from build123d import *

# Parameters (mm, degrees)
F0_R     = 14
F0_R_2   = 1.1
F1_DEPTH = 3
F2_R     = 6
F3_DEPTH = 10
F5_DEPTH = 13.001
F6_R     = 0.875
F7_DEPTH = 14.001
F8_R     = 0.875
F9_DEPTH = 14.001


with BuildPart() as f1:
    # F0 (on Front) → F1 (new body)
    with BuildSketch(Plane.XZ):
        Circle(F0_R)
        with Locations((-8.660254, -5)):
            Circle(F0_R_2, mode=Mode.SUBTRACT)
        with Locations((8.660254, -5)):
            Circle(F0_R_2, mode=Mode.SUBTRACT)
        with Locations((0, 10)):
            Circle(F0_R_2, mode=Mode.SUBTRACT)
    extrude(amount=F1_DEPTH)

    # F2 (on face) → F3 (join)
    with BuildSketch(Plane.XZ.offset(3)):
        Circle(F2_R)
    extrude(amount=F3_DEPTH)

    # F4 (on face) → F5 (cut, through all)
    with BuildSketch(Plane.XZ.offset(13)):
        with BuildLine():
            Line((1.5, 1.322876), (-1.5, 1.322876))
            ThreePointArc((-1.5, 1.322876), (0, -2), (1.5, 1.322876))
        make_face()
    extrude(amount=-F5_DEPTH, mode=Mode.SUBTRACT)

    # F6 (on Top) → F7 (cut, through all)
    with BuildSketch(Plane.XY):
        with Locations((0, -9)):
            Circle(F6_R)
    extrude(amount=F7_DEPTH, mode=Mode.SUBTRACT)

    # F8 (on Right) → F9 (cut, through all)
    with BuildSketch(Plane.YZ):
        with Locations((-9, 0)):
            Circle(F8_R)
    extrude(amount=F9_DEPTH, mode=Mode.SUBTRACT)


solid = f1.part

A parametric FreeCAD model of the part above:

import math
import FreeCAD as App
import Part
import Sketcher
from FreeCAD import Vector
Q = App.Units.Quantity

doc = App.newDocument("Part")
body = doc.addObject("PartDesign::Body", "Body")

# Sketch on XZ plane
sketch1 = body.newObject("Sketcher::SketchObject", "Sketch")
sketch1.AttachmentSupport = (doc.getObject("XZ_Plane"), [""])
sketch1.MapMode = "FlatFace"
sketch1.addGeometry(Part.Circle(Vector(0, 0, 0), Vector(0, 0, 1), 14), False)
sketch1.addGeometry(Part.Circle(Vector(-8.7, -5, 0), Vector(0, 0, 1), 1.1), False)
sketch1.addGeometry(Part.Circle(Vector(8.7, -5, 0), Vector(0, 0, 1), 1.1), False)
sketch1.addGeometry(Part.Circle(Vector(0, 10, 0), Vector(0, 0, 1), 1.1), False)
sketch1.addConstraint(Sketcher.Constraint("Coincident", 0, 3, -1, 1))
sketch1.addConstraint(Sketcher.Constraint("Equal", 1, 2))
sketch1.addConstraint(Sketcher.Constraint("Equal", 2, 3))
sketch1.addConstraint(Sketcher.Constraint("Symmetric", 1, 3, 2, 3, -2))
sketch1.addConstraint(Sketcher.Constraint("PointOnObject", 3, 3, -2))
sketch1.addConstraint(Sketcher.Constraint("Diameter", 0, Q("28 mm")))
sketch1.addConstraint(Sketcher.Constraint("Diameter", 1, Q("2.2 mm")))
sketch1.addConstraint(Sketcher.Constraint("DistanceY", 1, 3, -1, 1, Q("5 mm")))
sketch1.addConstraint(Sketcher.Constraint("DistanceY", -1, 1, 3, 3, Q("10 mm")))
sketch1.addConstraint(Sketcher.Constraint("DistanceX", 1, 3, 2, 3, Q("17.320508 mm")))
pad1 = body.newObject("PartDesign::Pad", "Pad")
pad1.Profile = sketch1
pad1.Length = 3

# Sketch on XZ plane
sketch2 = body.newObject("Sketcher::SketchObject", "Sketch001")
sketch2.AttachmentSupport = (doc.getObject("XZ_Plane"), [""])
sketch2.MapMode = "FlatFace"
sketch2.AttachmentOffset = App.Placement(Vector(0, 0, 3), App.Rotation())
sketch2.addGeometry(Part.Circle(Vector(0, 0, 0), Vector(0, 0, 1), 6), False)
sketch2.addConstraint(Sketcher.Constraint("Coincident", 0, 3, -1, 1))
sketch2.addConstraint(Sketcher.Constraint("Diameter", 0, Q("12 mm")))
pad2 = body.newObject("PartDesign::Pad", "Pad001")
pad2.Profile = sketch2
pad2.Length = 10

# Sketch on XZ plane
sketch3 = body.newObject("Sketcher::SketchObject", "Sketch002")
sketch3.AttachmentSupport = (doc.getObject("XZ_Plane"), [""])
sketch3.MapMode = "FlatFace"
sketch3.AttachmentOffset = App.Placement(Vector(0, 0, 13), App.Rotation())
sketch3.addGeometry(Part.LineSegment(Vector(1.5, 1.3, 0), Vector(-1.5, 1.3, 0)), False)
sketch3.addGeometry(Part.ArcOfCircle(Part.Circle(Vector(0, 0, 0), Vector(0, 0, 1), 2), math.radians(139), math.radians(401)), False)
sketch3.addConstraint(Sketcher.Constraint("Coincident", 0, 1, 1, 2))
sketch3.addConstraint(Sketcher.Constraint("Coincident", 1, 1, 0, 2))
sketch3.addConstraint(Sketcher.Constraint("Horizontal", 0))
sketch3.addConstraint(Sketcher.Constraint("Coincident", 1, 3, -1, 1))
sketch3.addConstraint(Sketcher.Constraint("Radius", 1, Q("2 mm")))
sketch3.addConstraint(Sketcher.Constraint("DistanceX", 0, 2, 0, 1, Q("3 mm")))
pocket1 = body.newObject("PartDesign::Pocket", "Pocket")
pocket1.Profile = sketch3
pocket1.Type = "ThroughAll"

# Sketch on XY plane
sketch4 = body.newObject("Sketcher::SketchObject", "Sketch003")
sketch4.AttachmentSupport = (doc.getObject("XY_Plane"), [""])
sketch4.MapMode = "FlatFace"
sketch4.addGeometry(Part.Circle(Vector(0, -9, 0), Vector(0, 0, 1), 0.9), False)
sketch4.addConstraint(Sketcher.Constraint("PointOnObject", 0, 3, -2))
sketch4.addConstraint(Sketcher.Constraint("Diameter", 0, Q("1.75 mm")))
sketch4.addConstraint(Sketcher.Constraint("DistanceY", 0, 3, -1, 1, Q("9 mm")))
pocket2 = body.newObject("PartDesign::Pocket", "Pocket001")
pocket2.Profile = sketch4
pocket2.Type = "ThroughAll"
pocket2.Reversed = True

# Sketch on YZ plane
sketch5 = body.newObject("Sketcher::SketchObject", "Sketch004")
sketch5.AttachmentSupport = (doc.getObject("YZ_Plane"), [""])
sketch5.MapMode = "FlatFace"
sketch5.addGeometry(Part.Circle(Vector(-9, 0, 0), Vector(0, 0, 1), 0.9), False)
sketch5.addConstraint(Sketcher.Constraint("PointOnObject", 0, 3, -1))
sketch5.addConstraint(Sketcher.Constraint("Diameter", 0, Q("1.75 mm")))
sketch5.addConstraint(Sketcher.Constraint("DistanceX", 0, 3, -1, 1, Q("9 mm")))
pocket3 = body.newObject("PartDesign::Pocket", "Pocket002")
pocket3.Profile = sketch5
pocket3.Type = "ThroughAll"
pocket3.Reversed = True

doc.recompute()
